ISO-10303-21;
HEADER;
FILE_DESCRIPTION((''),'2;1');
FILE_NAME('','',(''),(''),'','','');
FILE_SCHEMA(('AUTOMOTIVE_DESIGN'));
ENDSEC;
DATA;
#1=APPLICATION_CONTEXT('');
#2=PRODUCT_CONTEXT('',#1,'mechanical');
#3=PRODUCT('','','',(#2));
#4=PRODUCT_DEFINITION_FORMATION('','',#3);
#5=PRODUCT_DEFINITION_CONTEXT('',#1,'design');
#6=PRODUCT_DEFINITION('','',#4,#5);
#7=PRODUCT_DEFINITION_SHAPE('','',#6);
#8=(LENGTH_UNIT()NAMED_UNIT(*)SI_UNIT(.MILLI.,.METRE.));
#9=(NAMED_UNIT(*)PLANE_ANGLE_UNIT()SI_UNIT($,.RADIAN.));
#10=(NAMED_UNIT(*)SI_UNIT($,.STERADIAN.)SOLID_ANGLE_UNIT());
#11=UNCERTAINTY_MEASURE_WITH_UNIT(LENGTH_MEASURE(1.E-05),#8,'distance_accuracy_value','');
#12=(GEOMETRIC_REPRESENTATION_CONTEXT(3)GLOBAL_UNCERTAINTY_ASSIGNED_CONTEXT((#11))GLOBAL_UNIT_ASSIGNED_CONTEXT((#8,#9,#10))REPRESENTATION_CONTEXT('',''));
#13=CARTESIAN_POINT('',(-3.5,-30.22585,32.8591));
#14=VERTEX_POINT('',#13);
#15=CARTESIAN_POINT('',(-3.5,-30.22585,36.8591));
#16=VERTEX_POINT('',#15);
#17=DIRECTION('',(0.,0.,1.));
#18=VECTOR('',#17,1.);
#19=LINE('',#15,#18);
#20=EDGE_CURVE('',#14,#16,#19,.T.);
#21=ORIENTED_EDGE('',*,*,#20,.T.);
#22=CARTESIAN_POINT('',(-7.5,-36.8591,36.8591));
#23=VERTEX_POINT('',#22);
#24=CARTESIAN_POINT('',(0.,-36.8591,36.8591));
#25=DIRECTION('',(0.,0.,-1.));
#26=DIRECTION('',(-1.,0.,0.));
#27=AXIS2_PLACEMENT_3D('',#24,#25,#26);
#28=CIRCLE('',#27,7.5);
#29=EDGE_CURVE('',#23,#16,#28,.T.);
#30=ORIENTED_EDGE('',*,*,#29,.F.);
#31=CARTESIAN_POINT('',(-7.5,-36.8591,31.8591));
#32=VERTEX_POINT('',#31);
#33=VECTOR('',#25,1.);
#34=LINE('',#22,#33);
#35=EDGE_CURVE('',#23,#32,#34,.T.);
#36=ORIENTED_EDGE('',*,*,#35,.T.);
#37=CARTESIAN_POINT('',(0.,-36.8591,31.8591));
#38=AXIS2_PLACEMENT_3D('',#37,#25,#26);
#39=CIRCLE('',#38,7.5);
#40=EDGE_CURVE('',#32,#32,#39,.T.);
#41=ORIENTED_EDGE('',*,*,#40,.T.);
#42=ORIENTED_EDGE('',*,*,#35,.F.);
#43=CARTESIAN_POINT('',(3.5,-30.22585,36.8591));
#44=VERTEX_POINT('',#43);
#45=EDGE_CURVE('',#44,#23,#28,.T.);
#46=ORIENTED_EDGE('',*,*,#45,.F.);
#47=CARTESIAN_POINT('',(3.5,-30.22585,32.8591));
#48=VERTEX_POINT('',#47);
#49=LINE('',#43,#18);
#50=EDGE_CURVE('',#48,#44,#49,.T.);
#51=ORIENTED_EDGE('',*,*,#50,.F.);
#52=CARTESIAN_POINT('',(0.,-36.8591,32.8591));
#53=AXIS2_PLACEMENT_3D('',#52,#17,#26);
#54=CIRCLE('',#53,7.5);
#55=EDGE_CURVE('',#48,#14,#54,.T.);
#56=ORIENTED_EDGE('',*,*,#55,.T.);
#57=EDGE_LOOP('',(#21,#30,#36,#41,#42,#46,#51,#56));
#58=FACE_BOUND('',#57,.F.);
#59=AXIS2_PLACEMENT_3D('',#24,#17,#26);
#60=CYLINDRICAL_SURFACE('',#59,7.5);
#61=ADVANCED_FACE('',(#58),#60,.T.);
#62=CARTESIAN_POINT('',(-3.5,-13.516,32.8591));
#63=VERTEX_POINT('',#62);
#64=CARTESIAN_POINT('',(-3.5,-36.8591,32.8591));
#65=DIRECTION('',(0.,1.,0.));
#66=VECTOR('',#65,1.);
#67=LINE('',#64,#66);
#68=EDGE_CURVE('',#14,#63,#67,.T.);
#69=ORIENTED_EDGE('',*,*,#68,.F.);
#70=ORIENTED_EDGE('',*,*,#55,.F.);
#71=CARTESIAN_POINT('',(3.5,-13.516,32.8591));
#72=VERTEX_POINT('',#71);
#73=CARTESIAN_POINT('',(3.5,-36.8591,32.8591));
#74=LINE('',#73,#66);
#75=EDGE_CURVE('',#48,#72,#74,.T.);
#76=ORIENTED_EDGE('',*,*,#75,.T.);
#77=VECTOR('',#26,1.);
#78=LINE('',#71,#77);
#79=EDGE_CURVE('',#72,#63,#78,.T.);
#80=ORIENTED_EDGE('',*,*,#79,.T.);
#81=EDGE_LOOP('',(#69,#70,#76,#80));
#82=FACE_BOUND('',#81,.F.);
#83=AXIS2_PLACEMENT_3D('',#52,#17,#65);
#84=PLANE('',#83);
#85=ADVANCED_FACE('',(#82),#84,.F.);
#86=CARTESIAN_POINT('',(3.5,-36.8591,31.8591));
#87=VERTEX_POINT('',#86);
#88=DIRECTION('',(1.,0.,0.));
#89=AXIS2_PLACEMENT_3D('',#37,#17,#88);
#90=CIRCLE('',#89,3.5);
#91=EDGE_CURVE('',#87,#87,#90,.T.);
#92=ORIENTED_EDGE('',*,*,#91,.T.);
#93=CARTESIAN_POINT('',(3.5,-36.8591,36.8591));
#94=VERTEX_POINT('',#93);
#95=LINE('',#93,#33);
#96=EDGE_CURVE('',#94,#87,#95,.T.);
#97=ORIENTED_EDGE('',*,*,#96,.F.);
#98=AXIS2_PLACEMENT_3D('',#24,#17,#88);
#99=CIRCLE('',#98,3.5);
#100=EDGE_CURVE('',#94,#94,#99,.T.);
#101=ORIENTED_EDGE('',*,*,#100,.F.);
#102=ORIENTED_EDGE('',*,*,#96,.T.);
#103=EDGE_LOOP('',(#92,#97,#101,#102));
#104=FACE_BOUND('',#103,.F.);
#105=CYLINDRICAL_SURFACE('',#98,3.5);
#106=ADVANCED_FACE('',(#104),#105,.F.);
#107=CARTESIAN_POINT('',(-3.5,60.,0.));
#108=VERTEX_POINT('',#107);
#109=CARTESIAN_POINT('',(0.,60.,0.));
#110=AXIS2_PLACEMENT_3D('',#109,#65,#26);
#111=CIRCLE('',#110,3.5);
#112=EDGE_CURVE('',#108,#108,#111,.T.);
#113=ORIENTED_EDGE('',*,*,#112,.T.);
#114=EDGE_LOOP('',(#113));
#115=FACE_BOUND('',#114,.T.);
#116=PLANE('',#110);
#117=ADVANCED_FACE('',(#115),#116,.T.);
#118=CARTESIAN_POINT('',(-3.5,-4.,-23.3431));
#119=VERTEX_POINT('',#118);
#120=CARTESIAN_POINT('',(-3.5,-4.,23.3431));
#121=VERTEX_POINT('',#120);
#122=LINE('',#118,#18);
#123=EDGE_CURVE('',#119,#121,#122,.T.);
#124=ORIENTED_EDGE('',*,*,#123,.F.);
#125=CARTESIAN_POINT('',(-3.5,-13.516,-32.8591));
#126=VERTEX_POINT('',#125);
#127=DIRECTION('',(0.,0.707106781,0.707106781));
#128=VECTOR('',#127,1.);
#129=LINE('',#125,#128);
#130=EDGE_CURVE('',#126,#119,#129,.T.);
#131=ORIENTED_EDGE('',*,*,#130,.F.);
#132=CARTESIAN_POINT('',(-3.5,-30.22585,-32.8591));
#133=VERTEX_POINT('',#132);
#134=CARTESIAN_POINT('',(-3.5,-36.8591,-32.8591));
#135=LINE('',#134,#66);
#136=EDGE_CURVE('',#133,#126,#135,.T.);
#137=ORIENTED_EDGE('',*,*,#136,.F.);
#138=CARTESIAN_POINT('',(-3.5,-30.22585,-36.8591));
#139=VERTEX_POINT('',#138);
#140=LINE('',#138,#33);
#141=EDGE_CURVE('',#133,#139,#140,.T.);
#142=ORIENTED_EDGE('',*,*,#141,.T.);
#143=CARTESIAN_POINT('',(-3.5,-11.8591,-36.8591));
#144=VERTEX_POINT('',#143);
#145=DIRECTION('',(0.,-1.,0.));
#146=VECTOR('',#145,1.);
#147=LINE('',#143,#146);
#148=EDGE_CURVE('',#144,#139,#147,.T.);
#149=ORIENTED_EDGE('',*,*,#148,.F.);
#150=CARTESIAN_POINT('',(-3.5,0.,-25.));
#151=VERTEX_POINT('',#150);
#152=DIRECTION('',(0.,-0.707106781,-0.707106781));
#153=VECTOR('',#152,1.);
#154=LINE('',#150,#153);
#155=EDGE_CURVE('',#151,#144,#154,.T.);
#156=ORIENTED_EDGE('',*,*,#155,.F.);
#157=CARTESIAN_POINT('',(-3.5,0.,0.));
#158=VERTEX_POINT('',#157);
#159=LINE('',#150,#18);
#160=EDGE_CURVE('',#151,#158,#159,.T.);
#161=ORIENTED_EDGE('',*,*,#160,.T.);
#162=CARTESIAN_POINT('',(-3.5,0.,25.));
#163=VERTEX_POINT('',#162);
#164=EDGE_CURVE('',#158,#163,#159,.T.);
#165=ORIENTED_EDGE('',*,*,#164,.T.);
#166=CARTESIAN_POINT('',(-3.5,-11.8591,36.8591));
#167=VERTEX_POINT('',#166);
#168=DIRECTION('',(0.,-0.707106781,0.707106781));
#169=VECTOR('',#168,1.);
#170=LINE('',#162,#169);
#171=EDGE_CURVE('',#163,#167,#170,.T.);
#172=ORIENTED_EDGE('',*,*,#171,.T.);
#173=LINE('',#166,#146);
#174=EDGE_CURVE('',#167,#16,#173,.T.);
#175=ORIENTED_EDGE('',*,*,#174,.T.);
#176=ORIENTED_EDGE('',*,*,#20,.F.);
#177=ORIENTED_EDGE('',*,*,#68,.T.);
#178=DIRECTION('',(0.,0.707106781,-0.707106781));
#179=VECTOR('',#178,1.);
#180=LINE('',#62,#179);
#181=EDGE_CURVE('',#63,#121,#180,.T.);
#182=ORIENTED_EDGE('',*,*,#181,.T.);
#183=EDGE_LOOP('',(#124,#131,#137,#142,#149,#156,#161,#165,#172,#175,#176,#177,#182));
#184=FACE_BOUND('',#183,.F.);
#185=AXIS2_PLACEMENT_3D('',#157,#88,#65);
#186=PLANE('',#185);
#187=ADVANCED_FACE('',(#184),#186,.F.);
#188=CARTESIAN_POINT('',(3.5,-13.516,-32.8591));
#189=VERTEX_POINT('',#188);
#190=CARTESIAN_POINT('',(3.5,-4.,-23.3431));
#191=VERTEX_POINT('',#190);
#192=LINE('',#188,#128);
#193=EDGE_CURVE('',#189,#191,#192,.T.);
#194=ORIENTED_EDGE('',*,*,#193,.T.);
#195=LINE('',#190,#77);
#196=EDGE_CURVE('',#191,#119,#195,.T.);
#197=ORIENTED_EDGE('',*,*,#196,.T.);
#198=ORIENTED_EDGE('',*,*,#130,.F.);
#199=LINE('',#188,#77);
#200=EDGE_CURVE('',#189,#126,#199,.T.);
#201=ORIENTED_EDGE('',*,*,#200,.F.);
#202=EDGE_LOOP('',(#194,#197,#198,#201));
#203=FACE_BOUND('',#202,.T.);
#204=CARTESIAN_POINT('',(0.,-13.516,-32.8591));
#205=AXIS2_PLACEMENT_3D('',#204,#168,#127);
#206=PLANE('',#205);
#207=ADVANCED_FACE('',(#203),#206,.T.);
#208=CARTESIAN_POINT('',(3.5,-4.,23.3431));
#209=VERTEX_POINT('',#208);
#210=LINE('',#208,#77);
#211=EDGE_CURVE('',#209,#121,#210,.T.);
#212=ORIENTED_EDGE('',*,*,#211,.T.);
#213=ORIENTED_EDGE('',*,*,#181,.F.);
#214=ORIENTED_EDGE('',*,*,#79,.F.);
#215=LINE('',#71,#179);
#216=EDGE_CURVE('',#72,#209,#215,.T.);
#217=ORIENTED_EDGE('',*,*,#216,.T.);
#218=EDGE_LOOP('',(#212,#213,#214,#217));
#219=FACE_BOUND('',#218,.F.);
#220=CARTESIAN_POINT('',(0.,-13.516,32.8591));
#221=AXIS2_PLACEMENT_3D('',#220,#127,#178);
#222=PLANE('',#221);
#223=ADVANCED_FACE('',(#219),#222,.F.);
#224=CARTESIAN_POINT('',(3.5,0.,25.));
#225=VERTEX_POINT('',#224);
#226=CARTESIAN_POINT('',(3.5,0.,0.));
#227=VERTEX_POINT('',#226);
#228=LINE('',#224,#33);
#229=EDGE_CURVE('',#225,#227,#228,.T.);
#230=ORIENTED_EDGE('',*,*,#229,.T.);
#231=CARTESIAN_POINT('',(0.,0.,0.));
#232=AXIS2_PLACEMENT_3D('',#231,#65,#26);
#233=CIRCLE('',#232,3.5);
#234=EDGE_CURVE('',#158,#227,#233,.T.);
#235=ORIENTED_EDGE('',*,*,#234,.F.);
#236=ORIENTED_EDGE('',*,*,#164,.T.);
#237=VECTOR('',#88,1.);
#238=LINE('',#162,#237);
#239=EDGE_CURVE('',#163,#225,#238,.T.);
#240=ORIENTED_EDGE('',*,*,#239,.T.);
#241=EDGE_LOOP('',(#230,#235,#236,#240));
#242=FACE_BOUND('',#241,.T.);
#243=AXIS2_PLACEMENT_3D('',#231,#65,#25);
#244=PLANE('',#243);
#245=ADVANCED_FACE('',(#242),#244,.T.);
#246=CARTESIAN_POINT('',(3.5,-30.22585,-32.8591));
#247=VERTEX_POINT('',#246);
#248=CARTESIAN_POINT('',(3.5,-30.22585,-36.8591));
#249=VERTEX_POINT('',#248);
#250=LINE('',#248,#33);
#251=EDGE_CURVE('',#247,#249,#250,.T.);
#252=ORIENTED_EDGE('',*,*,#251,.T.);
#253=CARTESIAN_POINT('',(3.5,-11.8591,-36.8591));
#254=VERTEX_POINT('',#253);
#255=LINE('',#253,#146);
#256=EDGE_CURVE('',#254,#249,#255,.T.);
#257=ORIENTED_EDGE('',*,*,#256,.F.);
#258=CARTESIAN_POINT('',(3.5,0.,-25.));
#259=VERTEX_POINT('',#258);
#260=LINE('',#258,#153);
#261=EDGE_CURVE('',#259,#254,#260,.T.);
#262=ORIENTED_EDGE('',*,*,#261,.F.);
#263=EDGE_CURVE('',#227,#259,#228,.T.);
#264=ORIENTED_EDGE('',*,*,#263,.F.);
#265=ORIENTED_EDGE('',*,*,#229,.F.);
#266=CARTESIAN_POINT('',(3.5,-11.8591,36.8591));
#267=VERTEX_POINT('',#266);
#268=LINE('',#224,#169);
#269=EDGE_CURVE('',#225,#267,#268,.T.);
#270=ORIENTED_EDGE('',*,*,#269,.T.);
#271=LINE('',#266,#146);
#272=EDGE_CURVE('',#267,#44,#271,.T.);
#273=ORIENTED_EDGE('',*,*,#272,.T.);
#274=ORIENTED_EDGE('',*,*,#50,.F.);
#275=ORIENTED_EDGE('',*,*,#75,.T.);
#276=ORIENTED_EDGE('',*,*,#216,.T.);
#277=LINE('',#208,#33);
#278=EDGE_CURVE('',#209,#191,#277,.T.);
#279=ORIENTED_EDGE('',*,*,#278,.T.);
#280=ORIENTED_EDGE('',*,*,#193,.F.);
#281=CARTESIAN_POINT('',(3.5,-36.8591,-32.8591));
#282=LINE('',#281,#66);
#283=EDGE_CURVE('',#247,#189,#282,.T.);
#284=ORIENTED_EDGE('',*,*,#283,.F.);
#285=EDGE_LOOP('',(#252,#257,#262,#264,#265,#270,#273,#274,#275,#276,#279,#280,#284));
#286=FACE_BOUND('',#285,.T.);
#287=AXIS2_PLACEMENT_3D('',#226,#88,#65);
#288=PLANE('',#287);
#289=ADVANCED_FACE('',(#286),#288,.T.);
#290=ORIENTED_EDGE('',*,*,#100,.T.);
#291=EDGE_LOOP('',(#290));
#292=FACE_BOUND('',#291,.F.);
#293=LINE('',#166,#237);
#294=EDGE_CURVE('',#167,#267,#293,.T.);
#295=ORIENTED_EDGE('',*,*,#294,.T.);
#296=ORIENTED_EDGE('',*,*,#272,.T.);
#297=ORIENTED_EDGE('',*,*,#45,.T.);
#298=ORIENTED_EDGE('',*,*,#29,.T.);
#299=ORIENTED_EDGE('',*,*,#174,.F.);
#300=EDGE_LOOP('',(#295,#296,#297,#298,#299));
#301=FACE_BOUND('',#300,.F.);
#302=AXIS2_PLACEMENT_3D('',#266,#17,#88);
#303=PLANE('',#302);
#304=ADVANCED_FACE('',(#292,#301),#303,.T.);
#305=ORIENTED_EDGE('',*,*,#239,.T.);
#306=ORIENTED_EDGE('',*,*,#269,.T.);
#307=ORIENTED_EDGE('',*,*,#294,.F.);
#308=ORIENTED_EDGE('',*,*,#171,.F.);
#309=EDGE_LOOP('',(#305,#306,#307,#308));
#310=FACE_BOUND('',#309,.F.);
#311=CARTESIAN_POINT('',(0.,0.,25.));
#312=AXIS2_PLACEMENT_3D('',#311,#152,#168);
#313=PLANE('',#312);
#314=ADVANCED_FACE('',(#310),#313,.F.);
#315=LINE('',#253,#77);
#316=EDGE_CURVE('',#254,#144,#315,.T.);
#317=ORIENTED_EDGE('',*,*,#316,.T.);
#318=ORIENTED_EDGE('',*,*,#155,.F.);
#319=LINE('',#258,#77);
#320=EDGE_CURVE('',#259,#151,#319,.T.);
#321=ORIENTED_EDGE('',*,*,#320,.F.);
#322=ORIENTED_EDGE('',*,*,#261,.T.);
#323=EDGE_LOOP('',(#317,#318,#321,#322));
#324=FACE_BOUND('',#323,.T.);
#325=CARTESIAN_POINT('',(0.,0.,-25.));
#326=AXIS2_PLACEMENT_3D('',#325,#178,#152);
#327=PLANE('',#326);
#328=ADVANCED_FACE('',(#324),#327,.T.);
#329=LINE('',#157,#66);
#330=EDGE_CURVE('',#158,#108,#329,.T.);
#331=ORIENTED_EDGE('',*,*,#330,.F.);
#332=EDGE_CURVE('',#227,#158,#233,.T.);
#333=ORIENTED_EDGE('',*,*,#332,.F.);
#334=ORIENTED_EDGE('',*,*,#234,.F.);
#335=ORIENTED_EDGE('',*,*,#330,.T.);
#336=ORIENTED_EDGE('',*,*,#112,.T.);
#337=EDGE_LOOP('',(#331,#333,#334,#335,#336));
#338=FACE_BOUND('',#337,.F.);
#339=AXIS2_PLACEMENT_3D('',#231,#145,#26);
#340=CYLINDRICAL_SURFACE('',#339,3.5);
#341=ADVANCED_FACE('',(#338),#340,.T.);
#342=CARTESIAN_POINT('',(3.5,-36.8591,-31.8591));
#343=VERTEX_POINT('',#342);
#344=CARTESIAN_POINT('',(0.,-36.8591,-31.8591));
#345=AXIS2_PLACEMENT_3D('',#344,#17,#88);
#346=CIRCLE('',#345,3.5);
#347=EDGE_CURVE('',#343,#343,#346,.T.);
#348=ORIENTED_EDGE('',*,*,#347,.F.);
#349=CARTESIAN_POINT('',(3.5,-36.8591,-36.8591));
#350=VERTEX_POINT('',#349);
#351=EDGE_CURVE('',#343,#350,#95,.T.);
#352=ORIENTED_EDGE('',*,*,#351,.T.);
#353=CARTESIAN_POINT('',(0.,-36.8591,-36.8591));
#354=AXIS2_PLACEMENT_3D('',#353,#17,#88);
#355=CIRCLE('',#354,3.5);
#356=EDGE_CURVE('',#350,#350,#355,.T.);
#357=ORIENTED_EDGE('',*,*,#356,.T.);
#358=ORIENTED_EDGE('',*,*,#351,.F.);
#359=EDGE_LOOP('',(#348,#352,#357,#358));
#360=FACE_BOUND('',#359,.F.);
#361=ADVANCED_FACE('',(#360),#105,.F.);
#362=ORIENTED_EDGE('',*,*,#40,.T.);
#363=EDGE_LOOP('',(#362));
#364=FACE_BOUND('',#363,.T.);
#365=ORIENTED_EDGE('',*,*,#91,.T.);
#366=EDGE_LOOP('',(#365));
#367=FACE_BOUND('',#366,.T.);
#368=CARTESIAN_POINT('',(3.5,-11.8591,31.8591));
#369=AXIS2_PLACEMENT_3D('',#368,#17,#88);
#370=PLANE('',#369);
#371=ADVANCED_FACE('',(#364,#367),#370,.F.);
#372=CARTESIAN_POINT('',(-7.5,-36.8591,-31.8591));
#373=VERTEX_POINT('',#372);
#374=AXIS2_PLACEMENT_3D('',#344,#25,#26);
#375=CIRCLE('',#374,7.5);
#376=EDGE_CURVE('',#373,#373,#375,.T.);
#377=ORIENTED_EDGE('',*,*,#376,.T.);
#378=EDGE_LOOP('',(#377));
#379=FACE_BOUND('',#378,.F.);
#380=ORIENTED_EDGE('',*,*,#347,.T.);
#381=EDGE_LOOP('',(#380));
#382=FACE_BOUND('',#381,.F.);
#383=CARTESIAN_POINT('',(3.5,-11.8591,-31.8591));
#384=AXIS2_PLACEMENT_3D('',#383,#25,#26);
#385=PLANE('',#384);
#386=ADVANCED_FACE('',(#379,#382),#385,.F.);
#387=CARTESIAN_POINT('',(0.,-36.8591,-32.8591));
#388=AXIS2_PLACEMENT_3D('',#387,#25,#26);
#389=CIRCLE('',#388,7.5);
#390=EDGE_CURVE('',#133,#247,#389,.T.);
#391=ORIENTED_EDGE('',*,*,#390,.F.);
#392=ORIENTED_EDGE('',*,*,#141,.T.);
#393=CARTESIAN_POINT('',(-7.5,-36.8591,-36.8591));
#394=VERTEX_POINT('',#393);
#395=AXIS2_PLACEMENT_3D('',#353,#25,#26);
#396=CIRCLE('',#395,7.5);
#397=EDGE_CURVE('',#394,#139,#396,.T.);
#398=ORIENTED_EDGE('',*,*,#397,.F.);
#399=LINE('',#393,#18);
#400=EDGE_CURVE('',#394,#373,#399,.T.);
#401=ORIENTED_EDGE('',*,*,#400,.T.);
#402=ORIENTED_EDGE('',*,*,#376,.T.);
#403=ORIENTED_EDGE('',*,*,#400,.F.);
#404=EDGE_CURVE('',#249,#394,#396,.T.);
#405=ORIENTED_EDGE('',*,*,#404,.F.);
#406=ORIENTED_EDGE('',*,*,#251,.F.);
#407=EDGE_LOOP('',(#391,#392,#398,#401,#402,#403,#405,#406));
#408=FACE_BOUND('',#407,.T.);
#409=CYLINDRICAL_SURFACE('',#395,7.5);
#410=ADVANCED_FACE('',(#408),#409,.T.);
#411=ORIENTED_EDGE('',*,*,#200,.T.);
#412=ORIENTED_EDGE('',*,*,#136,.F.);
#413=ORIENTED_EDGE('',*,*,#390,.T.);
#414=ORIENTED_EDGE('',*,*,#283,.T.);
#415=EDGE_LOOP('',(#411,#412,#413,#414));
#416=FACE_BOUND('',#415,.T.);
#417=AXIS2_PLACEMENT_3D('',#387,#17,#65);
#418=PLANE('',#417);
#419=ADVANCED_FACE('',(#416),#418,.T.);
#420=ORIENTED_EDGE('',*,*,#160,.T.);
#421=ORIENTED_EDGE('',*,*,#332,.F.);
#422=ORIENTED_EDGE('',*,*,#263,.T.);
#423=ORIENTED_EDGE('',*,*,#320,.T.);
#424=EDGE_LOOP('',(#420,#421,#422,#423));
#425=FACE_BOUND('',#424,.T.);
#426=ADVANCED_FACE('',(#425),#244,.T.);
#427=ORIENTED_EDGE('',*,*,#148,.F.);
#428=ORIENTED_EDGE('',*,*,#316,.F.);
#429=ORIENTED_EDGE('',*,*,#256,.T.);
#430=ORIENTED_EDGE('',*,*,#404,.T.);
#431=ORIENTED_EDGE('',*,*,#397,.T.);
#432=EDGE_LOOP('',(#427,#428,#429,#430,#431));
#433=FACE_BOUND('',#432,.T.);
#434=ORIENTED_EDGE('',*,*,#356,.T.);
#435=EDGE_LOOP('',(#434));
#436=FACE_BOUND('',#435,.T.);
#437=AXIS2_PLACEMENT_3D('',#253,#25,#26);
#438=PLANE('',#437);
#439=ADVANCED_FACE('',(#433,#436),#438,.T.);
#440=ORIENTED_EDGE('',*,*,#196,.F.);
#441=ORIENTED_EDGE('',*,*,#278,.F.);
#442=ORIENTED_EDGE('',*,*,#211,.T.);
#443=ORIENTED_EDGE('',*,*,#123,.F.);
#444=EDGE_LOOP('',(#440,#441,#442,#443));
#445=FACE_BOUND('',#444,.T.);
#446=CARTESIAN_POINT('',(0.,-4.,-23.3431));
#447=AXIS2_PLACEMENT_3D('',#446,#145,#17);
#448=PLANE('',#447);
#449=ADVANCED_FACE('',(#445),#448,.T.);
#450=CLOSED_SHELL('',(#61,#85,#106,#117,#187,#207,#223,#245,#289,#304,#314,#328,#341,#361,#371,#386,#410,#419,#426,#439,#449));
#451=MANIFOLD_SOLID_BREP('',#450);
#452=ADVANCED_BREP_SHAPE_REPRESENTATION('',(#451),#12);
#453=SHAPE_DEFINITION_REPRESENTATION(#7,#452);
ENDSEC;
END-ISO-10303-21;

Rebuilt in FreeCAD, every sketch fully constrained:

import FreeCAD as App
import Part
import Sketcher

V = App.Vector

doc = App.newDocument("Part")
body = doc.addObject("PartDesign::Body", "Body")

# Sketch on XZ plane
sketch1 = body.newObject("Sketcher::SketchObject", "Sketch")
sketch1.AttachmentSupport = (doc.getObject("XZ_Plane"), [""])
sketch1.MapMode = "FlatFace"
sketch1.addGeometry(Part.Circle(V(0, 0, 0), V(0, 0, 1), 3.5), False)
sketch1.addConstraint([
    Sketcher.Constraint("Coincident", 0, 3, -1, 1),
    Sketcher.Constraint("Diameter", 0, 7.0),
])
pad1 = body.newObject("PartDesign::Pad", "Pad")
pad1.Profile = sketch1
pad1.Length = 60
pad1.Reversed = True

# Sketch on YZ plane
sketch2 = body.newObject("Sketcher::SketchObject", "Sketch001")
sketch2.AttachmentSupport = (doc.getObject("YZ_Plane"), [""])
sketch2.MapMode = "FlatFace"
sketch2.addGeometry([
    Part.LineSegment(V(0, -25, 0), V(0, 25, 0)),  # 0
    Part.LineSegment(V(0, 25, 0), V(-11.9, 36.9, 0)),  # 1
    Part.LineSegment(V(-11.9, 36.9, 0), V(-36.9, 36.9, 0)),  # 2
    Part.LineSegment(V(-36.9, 36.9, 0), V(-36.9, 32.9, 0)),  # 3
    Part.LineSegment(V(-36.9, 32.9, 0), V(-13.5, 32.9, 0)),  # 4
    Part.LineSegment(V(-13.5, 32.9, 0), V(-4, 23.3, 0)),  # 5
    Part.LineSegment(V(-4, 23.3, 0), V(-4, -23.3, 0)),  # 6
    Part.LineSegment(V(-4, -23.3, 0), V(-13.5, -32.9, 0)),  # 7
    Part.LineSegment(V(-13.5, -32.9, 0), V(-36.9, -32.9, 0)),  # 8
    Part.LineSegment(V(-36.9, -32.9, 0), V(-36.9, -36.9, 0)),  # 9
    Part.LineSegment(V(-36.9, -36.9, 0), V(-11.9, -36.9, 0)),  # 10
    Part.LineSegment(V(-11.9, -36.9, 0), V(0, -25, 0)),  # 11
], False)
sketch2.addConstraint([
    Sketcher.Constraint("Coincident", 0, 2, 1, 1),
    Sketcher.Constraint("Coincident", 1, 2, 2, 1),
    Sketcher.Constraint("Coincident", 2, 2, 3, 1),
    Sketcher.Constraint("Coincident", 3, 2, 4, 1),
    Sketcher.Constraint("Coincident", 4, 2, 5, 1),
    Sketcher.Constraint("Coincident", 5, 2, 6, 1),
    Sketcher.Constraint("Coincident", 6, 2, 7, 1),
    Sketcher.Constraint("Coincident", 7, 2, 8, 1),
    Sketcher.Constraint("Coincident", 8, 2, 9, 1),
    Sketcher.Constraint("Coincident", 9, 2, 10, 1),
    Sketcher.Constraint("Coincident", 10, 2, 11, 1),
    Sketcher.Constraint("Coincident", 11, 2, 0, 1),
    Sketcher.Constraint("Vertical", 0),
    Sketcher.Constraint("Horizontal", 2),
    Sketcher.Constraint("Vertical", 3),
    Sketcher.Constraint("Horizontal", 4),
    Sketcher.Constraint("Vertical", 6),
    Sketcher.Constraint("Horizontal", 8),
    Sketcher.Constraint("Vertical", 9),
    Sketcher.Constraint("Horizontal", 10),
    Sketcher.Constraint("Symmetric", 0, 2, 11, 2, -1, 1),
    Sketcher.Constraint("Symmetric", 4, 2, 7, 2, -1),
    Sketcher.Constraint("Symmetric", 2, 2, 9, 2, -1),
    Sketcher.Constraint("Parallel", 1, 5),
    Sketcher.Constraint("Perpendicular", 5, 7),
    Sketcher.Constraint("Parallel", 7, 11),
    Sketcher.Constraint("Vertical", 1, 2, 10, 2),
    Sketcher.Constraint("DistanceX", 2, 2, 2, 1, 25.0),
    Sketcher.Constraint("DistanceY", 3, 2, 3, 1, 4.0),
    Sketcher.Constraint("DistanceY", -1, 1, 0, 2, 25.0),
    Sketcher.Constraint("DistanceX", 5, 2, -1, 1, 4.0),
    Sketcher.Constraint("DistanceX", 4, 1, 4, 2, 23.343),
    Sketcher.Constraint("DistanceX", 1, 2, -1, 1, 11.859),
])
pad2 = body.newObject("PartDesign::Pad", "Pad001")
pad2.Profile = sketch2
pad2.Length = 7
pad2.Midplane = True

# Sketch on XY plane
sketch3 = body.newObject("Sketcher::SketchObject", "Sketch002")
sketch3.AttachmentSupport = (doc.getObject("XY_Plane"), [""])
sketch3.MapMode = "FlatFace"
sketch3.AttachmentOffset = App.Placement(V(0, 0, -36.8591), App.Rotation())
sketch3.addGeometry(Part.Circle(V(0, -37, 0), V(0, 0, 1), 8), False)
sketch3.addConstraint([
    Sketcher.Constraint("PointOnObject", 0, 3, -2),
    Sketcher.Constraint("Diameter", 0, 15.0),
    Sketcher.Constraint("DistanceY", 0, 3, -1, 1, 36.859),
])
pad3 = body.newObject("PartDesign::Pad", "Pad002")
pad3.Profile = sketch3
pad3.Length = 5
doc.recompute()

mirrored = body.newObject("PartDesign::Mirrored", "Mirrored")
mirrored.Originals = [pad3]
mirrored.MirrorPlane = (doc.getObject("XY_Plane"), [""])
body.Tip = mirrored

# Sketch on XY plane
sketch4 = body.newObject("Sketcher::SketchObject", "Sketch003")
sketch4.AttachmentSupport = (doc.getObject("XY_Plane"), [""])
sketch4.MapMode = "FlatFace"
sketch4.AttachmentOffset = App.Placement(V(0, 0, 36.8591), App.Rotation())
sketch4.addGeometry(Part.Circle(V(0, -36.9, 0), V(0, 0, 1), 3.5), False)
sketch4.addConstraint([
    Sketcher.Constraint("PointOnObject", 0, 3, -2),
    Sketcher.Constraint("Diameter", 0, 7.0),
    Sketcher.Constraint("DistanceY", 0, 3, -1, 1, 36.859),
])
pocket1 = body.newObject("PartDesign::Pocket", "Pocket")
pocket1.Profile = sketch4
pocket1.Type = "ThroughAll"

doc.recompute()
